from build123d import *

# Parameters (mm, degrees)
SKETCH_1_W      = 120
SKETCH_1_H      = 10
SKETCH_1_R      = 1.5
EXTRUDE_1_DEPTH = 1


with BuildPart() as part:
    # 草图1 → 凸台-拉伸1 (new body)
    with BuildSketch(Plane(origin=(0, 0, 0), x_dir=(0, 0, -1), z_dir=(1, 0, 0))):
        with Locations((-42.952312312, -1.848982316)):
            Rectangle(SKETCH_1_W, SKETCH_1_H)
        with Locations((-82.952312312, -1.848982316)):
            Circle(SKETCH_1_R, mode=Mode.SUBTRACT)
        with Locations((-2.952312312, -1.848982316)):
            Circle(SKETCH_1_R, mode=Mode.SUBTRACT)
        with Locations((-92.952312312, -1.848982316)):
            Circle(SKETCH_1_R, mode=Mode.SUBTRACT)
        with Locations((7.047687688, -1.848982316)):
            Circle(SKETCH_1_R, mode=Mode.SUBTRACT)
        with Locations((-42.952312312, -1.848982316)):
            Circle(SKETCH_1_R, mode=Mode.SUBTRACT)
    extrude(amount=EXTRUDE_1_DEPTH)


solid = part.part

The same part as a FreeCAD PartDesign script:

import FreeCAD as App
import Part
import Sketcher

V = App.Vector
Q = App.Units.Quantity

doc = App.newDocument("Part")
params = doc.addObject("Spreadsheet::Sheet", "Params")
for row, (alias, value) in enumerate([
    ("sketch1_diameter", "3 mm"),
    ("sketch1_width", "10 mm"),
    ("sketch1_height", "120 mm"),
    ("pad1_length", "1 mm"),
], start=1):
    params.set(f"A{row}", alias)
    params.set(f"B{row}", "=" + value)
    params.setAlias(f"B{row}", alias)

body = doc.addObject("PartDesign::Body", "Body")

# Sketch on YZ plane
sketch1 = body.newObject("Sketcher::SketchObject", "Sketch")
sketch1.AttachmentSupport = (doc.getObject("YZ_Plane"), [""])
sketch1.MapMode = "FlatFace"
sketch1.addGeometry([
    Part.LineSegment(V(3.2, 103, 0), V(-6.8, 103, 0)),  # 0
    Part.LineSegment(V(-6.8, 103, 0), V(-6.8, -17, 0)),  # 1
    Part.LineSegment(V(-6.8, -17, 0), V(3.2, -17, 0)),  # 2
    Part.LineSegment(V(3.2, -17, 0), V(3.2, 103, 0)),  # 3
    Part.Circle(V(-1.8, 93, 0), V(0, 0, 1), 1.5),  # 4
    Part.Circle(V(-1.8, 83, 0), V(0, 0, 1), 1.5),  # 5
    Part.Circle(V(-1.8, 43, 0), V(0, 0, 1), 1.5),  # 6
    Part.Circle(V(-1.8, 3, 0), V(0, 0, 1), 1.5),  # 7
    Part.Circle(V(-1.8, -7, 0), V(0, 0, 1), 1.5),  # 8
], False)
sketch1.addConstraint([
    Sketcher.Constraint("Coincident", 0, 2, 1, 1),
    Sketcher.Constraint("Coincident", 1, 2, 2, 1),
    Sketcher.Constraint("Coincident", 2, 2, 3, 1),
    Sketcher.Constraint("Coincident", 3, 2, 0, 1),
    Sketcher.Constraint("Horizontal", 0),
    Sketcher.Constraint("Vertical", 1),
    Sketcher.Constraint("Horizontal", 2),
    Sketcher.Constraint("Vertical", 3),
    Sketcher.Constraint("Equal", 4, 5),
    Sketcher.Constraint("Equal", 5, 6),
    Sketcher.Constraint("Equal", 6, 7),
    Sketcher.Constraint("Equal", 7, 8),
    Sketcher.Constraint("Vertical", 4, 3, 5, 3),
    Sketcher.Constraint("Vertical", 5, 3, 6, 3),
    Sketcher.Constraint("Vertical", 6, 3, 7, 3),
    Sketcher.Constraint("Vertical", 7, 3, 8, 3),
    Sketcher.Constraint("Diameter", 4, Q("3 mm")),
    Sketcher.Constraint("DistanceX", 0, 2, 0, 1, Q("10 mm")),
    Sketcher.Constraint("DistanceY", 1, 2, 1, 1, Q("120 mm")),
    Sketcher.Constraint("DistanceY", 5, 3, 4, 3, Q("10 mm")),
    Sketcher.Constraint("DistanceY", 6, 3, 5, 3, Q("40 mm")),
    Sketcher.Constraint("DistanceY", 7, 3, 6, 3, Q("40 mm")),
    Sketcher.Constraint("DistanceY", 8, 3, 7, 3, Q("10 mm")),
    Sketcher.Constraint("DistanceX", 0, 2, 4, 3, Q("5 mm")),
    Sketcher.Constraint("DistanceY", 4, 3, 0, 2, Q("10 mm")),
    Sketcher.Constraint("DistanceX", 4, 3, -1, 1, Q("1.848982 mm")),
    Sketcher.Constraint("DistanceY", -1, 1, 4, 3, Q("92.952312 mm")),
])
sketch1.setExpression("Constraints[16]", "Params.sketch1_diameter")
sketch1.setExpression("Constraints[17]", "Params.sketch1_width")
sketch1.setExpression("Constraints[18]", "Params.sketch1_height")
pad1 = body.newObject("PartDesign::Pad", "Pad")
pad1.Profile = sketch1
pad1.setExpression("Length", "Params.pad1_length")

doc.recompute()
